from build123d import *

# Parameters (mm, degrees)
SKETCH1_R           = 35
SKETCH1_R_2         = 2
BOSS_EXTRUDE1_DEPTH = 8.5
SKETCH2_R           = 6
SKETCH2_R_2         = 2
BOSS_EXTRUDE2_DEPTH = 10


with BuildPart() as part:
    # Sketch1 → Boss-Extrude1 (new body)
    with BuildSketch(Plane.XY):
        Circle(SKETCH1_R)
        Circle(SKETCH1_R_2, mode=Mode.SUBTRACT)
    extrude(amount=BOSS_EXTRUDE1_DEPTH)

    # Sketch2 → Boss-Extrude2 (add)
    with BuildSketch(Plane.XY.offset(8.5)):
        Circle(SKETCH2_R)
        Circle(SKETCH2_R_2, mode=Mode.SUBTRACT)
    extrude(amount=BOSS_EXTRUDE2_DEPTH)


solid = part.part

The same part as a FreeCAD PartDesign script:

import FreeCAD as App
import Part
import Sketcher
from FreeCAD import Vector

doc = App.newDocument("Part")
body = doc.addObject("PartDesign::Body", "Body")

sketch1 = body.newObject("Sketcher::SketchObject", "Sketch")
sketch1.AttachmentSupport = (doc.getObject("XY_Plane"), [""])
sketch1.MapMode = "FlatFace"
sketch1.addGeometry([
    Part.Circle(Vector(0, 0, 0), Vector(0, 0, 1), 35),
    Part.Circle(Vector(0, 0, 0), Vector(0, 0, 1), 2),
], False)
sketch1.addConstraint([
    Sketcher.Constraint("Coincident", 0, 3, -1, 1),
    Sketcher.Constraint("Coincident", 1, 3, -1, 1),
    Sketcher.Constraint("Diameter", 0, 70.0),
    Sketcher.Constraint("Diameter", 1, 4.0),
])
pad1 = body.newObject("PartDesign::Pad", "Pad")
pad1.Profile = sketch1
pad1.Length = 8.5

sketch2 = body.newObject("Sketcher::SketchObject", "Sketch001")
sketch2.AttachmentSupport = (doc.getObject("XY_Plane"), [""])
sketch2.MapMode = "FlatFace"
sketch2.AttachmentOffset = App.Placement(Vector(0, 0, 8.5), App.Rotation())
sketch2.addGeometry([
    Part.Circle(Vector(0, 0, 0), Vector(0, 0, 1), 6),
    Part.Circle(Vector(0, 0, 0), Vector(0, 0, 1), 2),
], False)
sketch2.addConstraint([
    Sketcher.Constraint("Coincident", 0, 3, -1, 1),
    Sketcher.Constraint("Coincident", 1, 3, -1, 1),
    Sketcher.Constraint("Diameter", 0, 12.0),
    Sketcher.Constraint("Diameter", 1, 4.0),
])
pad2 = body.newObject("PartDesign::Pad", "Pad001")
pad2.Profile = sketch2
pad2.Length = 10

doc.recompute()
